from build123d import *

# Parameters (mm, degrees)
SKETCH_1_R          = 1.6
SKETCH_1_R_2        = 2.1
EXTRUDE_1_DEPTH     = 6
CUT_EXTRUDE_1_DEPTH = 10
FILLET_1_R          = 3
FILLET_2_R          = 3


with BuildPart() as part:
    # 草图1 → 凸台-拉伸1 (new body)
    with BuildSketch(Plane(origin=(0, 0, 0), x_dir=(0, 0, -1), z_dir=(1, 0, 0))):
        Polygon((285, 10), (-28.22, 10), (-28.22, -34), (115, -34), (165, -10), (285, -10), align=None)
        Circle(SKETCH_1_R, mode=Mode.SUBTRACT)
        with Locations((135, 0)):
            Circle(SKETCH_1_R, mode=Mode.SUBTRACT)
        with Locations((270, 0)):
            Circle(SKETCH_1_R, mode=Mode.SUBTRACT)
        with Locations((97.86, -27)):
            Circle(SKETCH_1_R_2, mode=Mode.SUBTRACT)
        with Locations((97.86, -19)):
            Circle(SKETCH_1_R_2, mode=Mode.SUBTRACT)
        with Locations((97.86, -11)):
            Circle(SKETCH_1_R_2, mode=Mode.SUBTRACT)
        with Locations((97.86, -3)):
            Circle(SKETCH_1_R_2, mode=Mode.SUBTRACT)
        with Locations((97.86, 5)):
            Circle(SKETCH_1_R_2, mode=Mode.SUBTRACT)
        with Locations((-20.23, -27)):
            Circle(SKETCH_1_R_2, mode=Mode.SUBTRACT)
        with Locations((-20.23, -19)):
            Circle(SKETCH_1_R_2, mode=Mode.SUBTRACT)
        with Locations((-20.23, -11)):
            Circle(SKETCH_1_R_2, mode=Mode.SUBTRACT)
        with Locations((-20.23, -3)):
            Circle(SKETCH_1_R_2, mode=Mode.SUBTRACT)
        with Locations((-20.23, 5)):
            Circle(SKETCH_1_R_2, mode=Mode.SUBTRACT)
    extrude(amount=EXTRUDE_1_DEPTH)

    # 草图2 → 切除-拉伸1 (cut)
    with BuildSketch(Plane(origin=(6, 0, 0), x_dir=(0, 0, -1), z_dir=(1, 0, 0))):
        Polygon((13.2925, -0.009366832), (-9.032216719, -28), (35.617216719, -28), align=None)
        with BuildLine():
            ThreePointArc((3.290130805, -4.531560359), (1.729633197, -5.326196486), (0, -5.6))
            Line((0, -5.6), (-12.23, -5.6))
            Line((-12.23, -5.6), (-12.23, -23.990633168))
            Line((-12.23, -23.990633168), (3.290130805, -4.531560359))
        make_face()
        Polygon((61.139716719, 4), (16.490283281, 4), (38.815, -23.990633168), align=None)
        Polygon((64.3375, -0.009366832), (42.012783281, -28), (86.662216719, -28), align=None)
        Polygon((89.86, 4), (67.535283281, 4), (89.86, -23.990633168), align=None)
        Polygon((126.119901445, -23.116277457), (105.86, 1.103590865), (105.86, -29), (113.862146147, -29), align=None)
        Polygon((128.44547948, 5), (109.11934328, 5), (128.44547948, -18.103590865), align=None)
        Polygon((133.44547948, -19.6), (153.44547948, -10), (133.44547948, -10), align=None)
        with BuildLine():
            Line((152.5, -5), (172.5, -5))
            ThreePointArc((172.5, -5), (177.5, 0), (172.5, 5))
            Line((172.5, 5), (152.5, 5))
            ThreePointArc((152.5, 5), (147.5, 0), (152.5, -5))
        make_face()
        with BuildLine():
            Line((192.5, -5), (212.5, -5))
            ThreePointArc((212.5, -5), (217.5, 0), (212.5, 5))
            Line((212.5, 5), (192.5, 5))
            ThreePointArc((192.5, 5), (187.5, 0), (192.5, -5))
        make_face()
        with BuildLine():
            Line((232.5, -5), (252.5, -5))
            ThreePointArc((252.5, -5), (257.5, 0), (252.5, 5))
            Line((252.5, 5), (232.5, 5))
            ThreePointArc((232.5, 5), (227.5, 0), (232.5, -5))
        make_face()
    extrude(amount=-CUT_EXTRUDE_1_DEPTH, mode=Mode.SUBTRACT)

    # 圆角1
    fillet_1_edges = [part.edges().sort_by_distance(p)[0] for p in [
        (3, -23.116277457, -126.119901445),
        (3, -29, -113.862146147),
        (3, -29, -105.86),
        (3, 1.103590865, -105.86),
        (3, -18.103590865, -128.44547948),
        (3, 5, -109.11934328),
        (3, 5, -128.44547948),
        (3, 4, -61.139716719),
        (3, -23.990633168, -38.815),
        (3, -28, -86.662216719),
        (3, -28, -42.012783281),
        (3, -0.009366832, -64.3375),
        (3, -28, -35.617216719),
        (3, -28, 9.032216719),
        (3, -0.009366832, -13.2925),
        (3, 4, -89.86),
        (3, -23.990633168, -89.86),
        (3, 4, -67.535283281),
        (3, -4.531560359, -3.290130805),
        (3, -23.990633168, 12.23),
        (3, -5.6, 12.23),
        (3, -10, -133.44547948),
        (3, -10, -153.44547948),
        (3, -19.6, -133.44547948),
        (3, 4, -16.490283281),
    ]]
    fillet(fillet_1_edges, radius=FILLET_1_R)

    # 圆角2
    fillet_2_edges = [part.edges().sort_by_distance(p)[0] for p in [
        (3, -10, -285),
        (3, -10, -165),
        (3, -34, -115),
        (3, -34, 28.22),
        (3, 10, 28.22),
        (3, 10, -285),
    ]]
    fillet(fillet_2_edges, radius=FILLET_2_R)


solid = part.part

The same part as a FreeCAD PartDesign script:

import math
import FreeCAD as App
import Part
import Sketcher
Q = App.Units.Quantity


def edges_at(feature, points):
    """Names of the edges that pass closest to the given points."""
    edges = feature.Shape.Edges
    near = lambda p: min(range(len(edges)), key=lambda i: edges[i].distToShape(Part.Vertex(*p))[0])
    return sorted({f"Edge{near(p) + 1}" for p in points})


def add_polygon(sketch, points):
    """Adds a closed chain of lines whose ends are joined by coincident constraints."""
    first, n = sketch.GeometryCount, len(points)
    for a, b in zip(points, points[1:] + points[:1]):
        sketch.addGeometry(Part.LineSegment(App.Vector(*a, 0), App.Vector(*b, 0)), False)
    for i in range(n):
        sketch.addConstraint(Sketcher.Constraint("Coincident", first + i, 2, first + (i + 1) % n, 1))

doc = App.newDocument("Part")
body = doc.addObject("PartDesign::Body", "Body")

# Sketch on YZ plane
sketch1 = body.newObject("Sketcher::SketchObject", "Sketch")
sketch1.AttachmentSupport = (doc.getObject("YZ_Plane"), [""])
sketch1.MapMode = "FlatFace"
add_polygon(sketch1, [(10, -285), (10, 28.22), (-34, 28.22), (-34, -115), (-10, -165), (-10, -285)])  # lines 0-5
sketch1.addGeometry(Part.Circle(App.Vector(-27, 20.23, 0), App.Vector(0, 0, 1), 2.1), False)  # 6
sketch1.addGeometry(Part.Circle(App.Vector(-27, -97.86, 0), App.Vector(0, 0, 1), 2.1), False)  # 7
sketch1.addGeometry(Part.Circle(App.Vector(-19, 20.23, 0), App.Vector(0, 0, 1), 2.1), False)  # 8
sketch1.addGeometry(Part.Circle(App.Vector(-19, -97.86, 0), App.Vector(0, 0, 1), 2.1), False)  # 9
sketch1.addGeometry(Part.Circle(App.Vector(-11, 20.23, 0), App.Vector(0, 0, 1), 2.1), False)  # 10
sketch1.addGeometry(Part.Circle(App.Vector(-3, 20.23, 0), App.Vector(0, 0, 1), 2.1), False)  # 11
sketch1.addGeometry(Part.Circle(App.Vector(-11, -97.86, 0), App.Vector(0, 0, 1), 2.1), False)  # 12
sketch1.addGeometry(Part.Circle(App.Vector(-3, -97.86, 0), App.Vector(0, 0, 1), 2.1), False)  # 13
sketch1.addGeometry(Part.Circle(App.Vector(0, 0, 0), App.Vector(0, 0, 1), 1.6), False)  # 14
sketch1.addGeometry(Part.Circle(App.Vector(5, 20.23, 0), App.Vector(0, 0, 1), 2.1), False)  # 15
sketch1.addGeometry(Part.Circle(App.Vector(5, -97.86, 0), App.Vector(0, 0, 1), 2.1), False)  # 16
sketch1.addGeometry(Part.Circle(App.Vector(0, -135, 0), App.Vector(0, 0, 1), 1.6), False)  # 17
sketch1.addGeometry(Part.Circle(App.Vector(0, -270, 0), App.Vector(0, 0, 1), 1.6), False)  # 18
sketch1.addConstraint([
    Sketcher.Constraint("Vertical", 0),
    Sketcher.Constraint("Horizontal", 1),
    Sketcher.Constraint("Vertical", 2),
    Sketcher.Constraint("Vertical", 4),
    Sketcher.Constraint("Horizontal", 5),
    Sketcher.Constraint("Coincident", 14, 3, -1, 1),
    Sketcher.Constraint("Equal", 6, 7),
    Sketcher.Constraint("Equal", 7, 8),
    Sketcher.Constraint("Equal", 8, 9),
    Sketcher.Constraint("Equal", 9, 10),
    Sketcher.Constraint("Equal", 10, 11),
    Sketcher.Constraint("Equal", 11, 12),
    Sketcher.Constraint("Equal", 12, 13),
    Sketcher.Constraint("Equal", 13, 15),
    Sketcher.Constraint("Equal", 15, 16),
    Sketcher.Constraint("Equal", 14, 17),
    Sketcher.Constraint("Equal", 17, 18),
    Sketcher.Constraint("PointOnObject", 17, 3, -2),
    Sketcher.Constraint("PointOnObject", 18, 3, -2),
    Sketcher.Constraint("Horizontal", 6, 3, 8, 3),
    Sketcher.Constraint("Horizontal", 7, 3, 9, 3),
    Sketcher.Constraint("Horizontal", 8, 3, 10, 3),
    Sketcher.Constraint("Horizontal", 10, 3, 11, 3),
    Sketcher.Constraint("Horizontal", 9, 3, 12, 3),
    Sketcher.Constraint("Horizontal", 12, 3, 13, 3),
    Sketcher.Constraint("Horizontal", 11, 3, 15, 3),
    Sketcher.Constraint("Horizontal", 13, 3, 16, 3),
    Sketcher.Constraint("Vertical", 6, 3, 7, 3),
    Sketcher.Constraint("Vertical", 8, 3, 9, 3),
    Sketcher.Constraint("Vertical", 10, 3, 12, 3),
    Sketcher.Constraint("Vertical", 11, 3, 13, 3),
    Sketcher.Constraint("Vertical", 15, 3, 16, 3),
    Sketcher.Constraint("Diameter", 6, Q("4.2 mm")),
    Sketcher.Constraint("Diameter", 14, Q("3.2 mm")),
    Sketcher.Constraint("DistanceX", 1, 2, 1, 1, Q("44 mm")),
    Sketcher.Constraint("DistanceX", 5, 1, 5, 2, Q("20 mm")),
    Sketcher.Constraint("DistanceY", 4, 2, 4, 1, Q("120 mm")),
    Sketcher.Constraint("DistanceX", 6, 3, -1, 1, Q("27 mm")),
    Sketcher.Constraint("DistanceX", 8, 3, -1, 1, Q("19 mm")),
    Sketcher.Constraint("DistanceX", 10, 3, -1, 1, Q("11 mm")),
    Sketcher.Constraint("DistanceX", 11, 3, -1, 1, Q("3 mm")),
    Sketcher.Constraint("DistanceX", -1, 1, 15, 3, Q("5 mm")),
    Sketcher.Constraint("DistanceY", 17, 3, -1, 1, Q("135 mm")),
    Sketcher.Constraint("DistanceY", 18, 3, -1, 1, Q("270 mm")),
    Sketcher.Constraint("DistanceX", -1, 1, 0, 2, Q("10 mm")),
    Sketcher.Constraint("DistanceY", 2, 2, -1, 1, Q("115 mm")),
    Sketcher.Constraint("DistanceY", 3, 2, -1, 1, Q("165 mm")),
    Sketcher.Constraint("DistanceY", 0, 1, 0, 2, Q("313.22 mm")),
    Sketcher.Constraint("DistanceY", -1, 1, 6, 3, Q("20.23 mm")),
    Sketcher.Constraint("DistanceY", 7, 3, -1, 1, Q("97.86 mm")),
])
pad1 = body.newObject("PartDesign::Pad", "Pad")
pad1.Profile = sketch1
pad1.Length = 6

# Sketch on YZ plane
sketch2 = body.newObject("Sketcher::SketchObject", "Sketch001")
sketch2.AttachmentSupport = (doc.getObject("YZ_Plane"), [""])
sketch2.MapMode = "FlatFace"
sketch2.AttachmentOffset = App.Placement(App.Vector(0, 0, 6), App.Rotation())
add_polygon(sketch2, [(-0.009367, -13.2925), (-28, 9.032217), (-28, -35.617217)])  # lines 0-2
sketch2.addGeometry(Part.ArcOfCircle(Part.Circle(App.Vector(0, 0, 0), App.Vector(0, 0, 1), 5.6), math.radians(180), math.radians(215.981454)), False)  # 3
sketch2.addGeometry(Part.LineSegment(App.Vector(-5.6, 0, 0), App.Vector(-5.6, 12.23, 0)), False)  # 4
sketch2.addGeometry(Part.LineSegment(App.Vector(-5.6, 12.23, 0), App.Vector(-23.990633, 12.23, 0)), False)  # 5
sketch2.addGeometry(Part.LineSegment(App.Vector(-23.990633, 12.23, 0), App.Vector(-4.53156, -3.290131, 0)), False)  # 6
add_polygon(sketch2, [(4, -61.139717), (4, -16.490283), (-23.990633, -38.815)])  # lines 7-9
add_polygon(sketch2, [(-0.009367, -64.3375), (-28, -42.012783), (-28, -86.662217)])  # lines 10-12
add_polygon(sketch2, [(4, -89.86), (4, -67.535283), (-23.990633, -89.86)])  # lines 13-15
add_polygon(sketch2, [(-23.116277, -126.119901), (1.103591, -105.86), (-29, -105.86), (-29, -113.862146)])  # lines 16-19
add_polygon(sketch2, [(5, -128.445479), (5, -109.119343), (-18.103591, -128.445479)])  # lines 20-22
add_polygon(sketch2, [(-19.6, -133.445479), (-10, -153.445479), (-10, -133.445479)])  # lines 23-25
sketch2.addGeometry(Part.LineSegment(App.Vector(-5, -152.5, 0), App.Vector(-5, -172.5, 0)), False)  # 26
sketch2.addGeometry(Part.ArcOfCircle(Part.Circle(App.Vector(0, -172.5, 0), App.Vector(0, 0, 1), 5), math.radians(180), math.radians(360)), False)  # 27
sketch2.addGeometry(Part.LineSegment(App.Vector(5, -172.5, 0), App.Vector(5, -152.5, 0)), False)  # 28
sketch2.addGeometry(Part.ArcOfCircle(Part.Circle(App.Vector(0, -152.5, 0), App.Vector(0, 0, 1), 5), math.radians(0), math.radians(180)), False)  # 29
sketch2.addGeometry(Part.LineSegment(App.Vector(-5, -192.5, 0), App.Vector(-5, -212.5, 0)), False)  # 30
sketch2.addGeometry(Part.ArcOfCircle(Part.Circle(App.Vector(0, -212.5, 0), App.Vector(0, 0, 1), 5), math.radians(180), math.radians(360)), False)  # 31
sketch2.addGeometry(Part.LineSegment(App.Vector(5, -212.5, 0), App.Vector(5, -192.5, 0)), False)  # 32
sketch2.addGeometry(Part.ArcOfCircle(Part.Circle(App.Vector(0, -192.5, 0), App.Vector(0, 0, 1), 5), math.radians(0), math.radians(180)), False)  # 33
sketch2.addGeometry(Part.LineSegment(App.Vector(-5, -232.5, 0), App.Vector(-5, -252.5, 0)), False)  # 34
sketch2.addGeometry(Part.ArcOfCircle(Part.Circle(App.Vector(0, -252.5, 0), App.Vector(0, 0, 1), 5), math.radians(180), math.radians(360)), False)  # 35
sketch2.addGeometry(Part.LineSegment(App.Vector(5, -252.5, 0), App.Vector(5, -232.5, 0)), False)  # 36
sketch2.addGeometry(Part.ArcOfCircle(Part.Circle(App.Vector(0, -232.5, 0), App.Vector(0, 0, 1), 5), math.radians(0), math.radians(180)), False)  # 37
sketch2.addConstraint([
    Sketcher.Constraint("Tangent", 3, 1, 4, 1),
    Sketcher.Constraint("Coincident", 4, 2, 5, 1),
    Sketcher.Constraint("Coincident", 5, 2, 6, 1),
    Sketcher.Constraint("Coincident", 6, 2, 3, 2),
    Sketcher.Constraint("Tangent", 26, 2, 27, 1),
    Sketcher.Constraint("Tangent", 27, 2, 28, 1),
    Sketcher.Constraint("Tangent", 28, 2, 29, 1),
    Sketcher.Constraint("Tangent", 29, 2, 26, 1),
    Sketcher.Constraint("Tangent", 30, 2, 31, 1),
    Sketcher.Constraint("Tangent", 31, 2, 32, 1),
    Sketcher.Constraint("Tangent", 32, 2, 33, 1),
    Sketcher.Constraint("Tangent", 33, 2, 30, 1),
    Sketcher.Constraint("Tangent", 34, 2, 35, 1),
    Sketcher.Constraint("Tangent", 35, 2, 36, 1),
    Sketcher.Constraint("Tangent", 36, 2, 37, 1),
    Sketcher.Constraint("Tangent", 37, 2, 34, 1),
    Sketcher.Constraint("Vertical", 1),
    Sketcher.Constraint("Vertical", 4),
    Sketcher.Constraint("Horizontal", 5),
    Sketcher.Constraint("Vertical", 7),
    Sketcher.Constraint("Vertical", 11),
    Sketcher.Constraint("Vertical", 13),
    Sketcher.Constraint("Horizontal", 15),
    Sketcher.Constraint("Horizontal", 17),
    Sketcher.Constraint("Vertical", 18),
    Sketcher.Constraint("Vertical", 20),
    Sketcher.Constraint("Horizontal", 22),
    Sketcher.Constraint("Vertical", 24),
    Sketcher.Constraint("Horizontal", 25),
    Sketcher.Constraint("Vertical", 26),
    Sketcher.Constraint("Vertical", 28),
    Sketcher.Constraint("Vertical", 30),
    Sketcher.Constraint("Vertical", 32),
    Sketcher.Constraint("Vertical", 34),
    Sketcher.Constraint("Vertical", 36),
    Sketcher.Constraint("Coincident", 3, 3, -1, 1),
    Sketcher.Constraint("Equal", 29, 31),
    Sketcher.Constraint("Equal", 33, 35),
    Sketcher.Constraint("PointOnObject", 27, 3, -2),
    Sketcher.Constraint("PointOnObject", 31, 3, -2),
    Sketcher.Constraint("PointOnObject", 35, 3, -2),
    Sketcher.Constraint("Parallel", 0, 6),
    Sketcher.Constraint("Parallel", 2, 8),
    Sketcher.Constraint("Parallel", 6, 9),
    Sketcher.Constraint("Parallel", 9, 10),
    Sketcher.Constraint("Parallel", 8, 12),
    Sketcher.Constraint("Parallel", 12, 14),
    Sketcher.Constraint("Parallel", 16, 21),
    Sketcher.Constraint("Parallel", 19, 23),
    Sketcher.Constraint("Vertical", 5, 2, 8, 2),
    Sketcher.Constraint("Vertical", 1, 2, 10, 2),
    Sketcher.Constraint("Vertical", 2, 2, 12, 2),
    Sketcher.Constraint("Vertical", 9, 2, 13, 2),
    Sketcher.Constraint("Vertical", 8, 2, 14, 2),
    Sketcher.Constraint("Vertical", 22, 2, 27, 2),
    Sketcher.Constraint("Equal", 1, 7),
    Sketcher.Constraint("Equal", 24, 26),
    Sketcher.Constraint("Equal", 28, 30),
    Sketcher.Constraint("Equal", 32, 34),
    Sketcher.Constraint("Equal", 0, 2),
    Sketcher.Constraint("Radius", 27, Q("5 mm")),
    Sketcher.Constraint("Radius", 3, Q("5.6 mm")),
    Sketcher.Constraint("DistanceY", 24, 1, 24, 2, Q("20 mm")),
    Sketcher.Constraint("DistanceX", 25, 2, 25, 1, Q("9.6 mm")),
    Sketcher.Constraint("DistanceX", 0, 2, -1, 1, Q("28 mm")),
    Sketcher.Constraint("DistanceX", -1, 1, 7, 2, Q("4 mm")),
    Sketcher.Constraint("DistanceX", 17, 2, -1, 1, Q("29 mm")),
    Sketcher.Constraint("DistanceX", 23, 2, -1, 1, Q("10 mm")),
    Sketcher.Constraint("DistanceY", 31, 3, 27, 3, Q("40 mm")),
    Sketcher.Constraint("DistanceY", 35, 3, 31, 3, Q("40 mm")),
    Sketcher.Constraint("DistanceY", 16, 2, 15, 2, Q("16 mm")),
    Sketcher.Constraint("DistanceY", 23, 2, 21, 2, Q("25 mm")),
    Sketcher.Constraint("DistanceY", 4, 1, 4, 2, Q("12.23 mm")),
    Sketcher.Constraint("DistanceY", 27, 3, -1, 1, Q("172.5 mm")),
    Sketcher.Constraint("DistanceY", 14, 2, -1, 1, Q("89.86 mm")),
    Sketcher.Constraint("DistanceY", 8, 2, -1, 1, Q("38.815 mm")),
    Sketcher.Constraint("DistanceY", 11, 2, 1, 2, Q("51.045 mm")),
    Sketcher.Constraint("DistanceX", 17, 2, 17, 1, Q("30.103591 mm")),
    Sketcher.Constraint("DistanceX", 22, 1, 22, 2, Q("23.103591 mm")),
    Sketcher.Constraint("DistanceY", 2, 2, -1, 1, Q("13.2925 mm")),
    Sketcher.Constraint("DistanceY", 19, 2, -1, 1, Q("126.119901 mm")),
    Sketcher.Constraint("Distance", 0, Q("35.803192 mm")),
    Sketcher.Constraint("Distance", 6, Q("24.890359 mm")),
    Sketcher.Constraint("Distance", 19, Q("13.596719 mm")),
    Sketcher.Constraint("DistanceY", 21, 2, -1, 1, Q("128.445479 mm")),
])
pocket1 = body.newObject("PartDesign::Pocket", "Pocket")
pocket1.Profile = sketch2
pocket1.Length = 10
doc.recompute()

fillet = body.newObject("PartDesign::Fillet", "Fillet")
fillet.Base = (pocket1, edges_at(pocket1, [
    (3, -23.116, -126.12),
    (3, -29, -113.862),
    (3, -29, -105.86),
    (3, 1.104, -105.86),
    (3, -18.104, -128.445),
    (3, 5, -109.119),
    (3, 5, -128.445),
    (3, 4, -61.14),
    (3, -23.991, -38.815),
    (3, -28, -86.662),
    (3, -28, -42.013),
    (3, -0.009, -64.338),
    (3, -28, -35.617),
    (3, -28, 9.032),
    (3, -0.009, -13.293),
    (3, 4, -89.86),
    (3, -23.991, -89.86),
    (3, 4, -67.535),
    (3, -4.532, -3.29),
    (3, -23.991, 12.23),
    (3, -5.6, 12.23),
    (3, -10, -133.445),
    (3, -10, -153.445),
    (3, -19.6, -133.445),
    (3, 4, -16.49),
]))
fillet.Radius = 3
doc.recompute()

fillet2 = body.newObject("PartDesign::Fillet", "Fillet001")
fillet2.Base = (fillet, edges_at(fillet, [
    (3, -10, -285),
    (3, -10, -165),
    (3, -34, -115),
    (3, -34, 28.22),
    (3, 10, 28.22),
    (3, 10, -285),
]))
fillet2.Radius = 3

doc.recompute()
